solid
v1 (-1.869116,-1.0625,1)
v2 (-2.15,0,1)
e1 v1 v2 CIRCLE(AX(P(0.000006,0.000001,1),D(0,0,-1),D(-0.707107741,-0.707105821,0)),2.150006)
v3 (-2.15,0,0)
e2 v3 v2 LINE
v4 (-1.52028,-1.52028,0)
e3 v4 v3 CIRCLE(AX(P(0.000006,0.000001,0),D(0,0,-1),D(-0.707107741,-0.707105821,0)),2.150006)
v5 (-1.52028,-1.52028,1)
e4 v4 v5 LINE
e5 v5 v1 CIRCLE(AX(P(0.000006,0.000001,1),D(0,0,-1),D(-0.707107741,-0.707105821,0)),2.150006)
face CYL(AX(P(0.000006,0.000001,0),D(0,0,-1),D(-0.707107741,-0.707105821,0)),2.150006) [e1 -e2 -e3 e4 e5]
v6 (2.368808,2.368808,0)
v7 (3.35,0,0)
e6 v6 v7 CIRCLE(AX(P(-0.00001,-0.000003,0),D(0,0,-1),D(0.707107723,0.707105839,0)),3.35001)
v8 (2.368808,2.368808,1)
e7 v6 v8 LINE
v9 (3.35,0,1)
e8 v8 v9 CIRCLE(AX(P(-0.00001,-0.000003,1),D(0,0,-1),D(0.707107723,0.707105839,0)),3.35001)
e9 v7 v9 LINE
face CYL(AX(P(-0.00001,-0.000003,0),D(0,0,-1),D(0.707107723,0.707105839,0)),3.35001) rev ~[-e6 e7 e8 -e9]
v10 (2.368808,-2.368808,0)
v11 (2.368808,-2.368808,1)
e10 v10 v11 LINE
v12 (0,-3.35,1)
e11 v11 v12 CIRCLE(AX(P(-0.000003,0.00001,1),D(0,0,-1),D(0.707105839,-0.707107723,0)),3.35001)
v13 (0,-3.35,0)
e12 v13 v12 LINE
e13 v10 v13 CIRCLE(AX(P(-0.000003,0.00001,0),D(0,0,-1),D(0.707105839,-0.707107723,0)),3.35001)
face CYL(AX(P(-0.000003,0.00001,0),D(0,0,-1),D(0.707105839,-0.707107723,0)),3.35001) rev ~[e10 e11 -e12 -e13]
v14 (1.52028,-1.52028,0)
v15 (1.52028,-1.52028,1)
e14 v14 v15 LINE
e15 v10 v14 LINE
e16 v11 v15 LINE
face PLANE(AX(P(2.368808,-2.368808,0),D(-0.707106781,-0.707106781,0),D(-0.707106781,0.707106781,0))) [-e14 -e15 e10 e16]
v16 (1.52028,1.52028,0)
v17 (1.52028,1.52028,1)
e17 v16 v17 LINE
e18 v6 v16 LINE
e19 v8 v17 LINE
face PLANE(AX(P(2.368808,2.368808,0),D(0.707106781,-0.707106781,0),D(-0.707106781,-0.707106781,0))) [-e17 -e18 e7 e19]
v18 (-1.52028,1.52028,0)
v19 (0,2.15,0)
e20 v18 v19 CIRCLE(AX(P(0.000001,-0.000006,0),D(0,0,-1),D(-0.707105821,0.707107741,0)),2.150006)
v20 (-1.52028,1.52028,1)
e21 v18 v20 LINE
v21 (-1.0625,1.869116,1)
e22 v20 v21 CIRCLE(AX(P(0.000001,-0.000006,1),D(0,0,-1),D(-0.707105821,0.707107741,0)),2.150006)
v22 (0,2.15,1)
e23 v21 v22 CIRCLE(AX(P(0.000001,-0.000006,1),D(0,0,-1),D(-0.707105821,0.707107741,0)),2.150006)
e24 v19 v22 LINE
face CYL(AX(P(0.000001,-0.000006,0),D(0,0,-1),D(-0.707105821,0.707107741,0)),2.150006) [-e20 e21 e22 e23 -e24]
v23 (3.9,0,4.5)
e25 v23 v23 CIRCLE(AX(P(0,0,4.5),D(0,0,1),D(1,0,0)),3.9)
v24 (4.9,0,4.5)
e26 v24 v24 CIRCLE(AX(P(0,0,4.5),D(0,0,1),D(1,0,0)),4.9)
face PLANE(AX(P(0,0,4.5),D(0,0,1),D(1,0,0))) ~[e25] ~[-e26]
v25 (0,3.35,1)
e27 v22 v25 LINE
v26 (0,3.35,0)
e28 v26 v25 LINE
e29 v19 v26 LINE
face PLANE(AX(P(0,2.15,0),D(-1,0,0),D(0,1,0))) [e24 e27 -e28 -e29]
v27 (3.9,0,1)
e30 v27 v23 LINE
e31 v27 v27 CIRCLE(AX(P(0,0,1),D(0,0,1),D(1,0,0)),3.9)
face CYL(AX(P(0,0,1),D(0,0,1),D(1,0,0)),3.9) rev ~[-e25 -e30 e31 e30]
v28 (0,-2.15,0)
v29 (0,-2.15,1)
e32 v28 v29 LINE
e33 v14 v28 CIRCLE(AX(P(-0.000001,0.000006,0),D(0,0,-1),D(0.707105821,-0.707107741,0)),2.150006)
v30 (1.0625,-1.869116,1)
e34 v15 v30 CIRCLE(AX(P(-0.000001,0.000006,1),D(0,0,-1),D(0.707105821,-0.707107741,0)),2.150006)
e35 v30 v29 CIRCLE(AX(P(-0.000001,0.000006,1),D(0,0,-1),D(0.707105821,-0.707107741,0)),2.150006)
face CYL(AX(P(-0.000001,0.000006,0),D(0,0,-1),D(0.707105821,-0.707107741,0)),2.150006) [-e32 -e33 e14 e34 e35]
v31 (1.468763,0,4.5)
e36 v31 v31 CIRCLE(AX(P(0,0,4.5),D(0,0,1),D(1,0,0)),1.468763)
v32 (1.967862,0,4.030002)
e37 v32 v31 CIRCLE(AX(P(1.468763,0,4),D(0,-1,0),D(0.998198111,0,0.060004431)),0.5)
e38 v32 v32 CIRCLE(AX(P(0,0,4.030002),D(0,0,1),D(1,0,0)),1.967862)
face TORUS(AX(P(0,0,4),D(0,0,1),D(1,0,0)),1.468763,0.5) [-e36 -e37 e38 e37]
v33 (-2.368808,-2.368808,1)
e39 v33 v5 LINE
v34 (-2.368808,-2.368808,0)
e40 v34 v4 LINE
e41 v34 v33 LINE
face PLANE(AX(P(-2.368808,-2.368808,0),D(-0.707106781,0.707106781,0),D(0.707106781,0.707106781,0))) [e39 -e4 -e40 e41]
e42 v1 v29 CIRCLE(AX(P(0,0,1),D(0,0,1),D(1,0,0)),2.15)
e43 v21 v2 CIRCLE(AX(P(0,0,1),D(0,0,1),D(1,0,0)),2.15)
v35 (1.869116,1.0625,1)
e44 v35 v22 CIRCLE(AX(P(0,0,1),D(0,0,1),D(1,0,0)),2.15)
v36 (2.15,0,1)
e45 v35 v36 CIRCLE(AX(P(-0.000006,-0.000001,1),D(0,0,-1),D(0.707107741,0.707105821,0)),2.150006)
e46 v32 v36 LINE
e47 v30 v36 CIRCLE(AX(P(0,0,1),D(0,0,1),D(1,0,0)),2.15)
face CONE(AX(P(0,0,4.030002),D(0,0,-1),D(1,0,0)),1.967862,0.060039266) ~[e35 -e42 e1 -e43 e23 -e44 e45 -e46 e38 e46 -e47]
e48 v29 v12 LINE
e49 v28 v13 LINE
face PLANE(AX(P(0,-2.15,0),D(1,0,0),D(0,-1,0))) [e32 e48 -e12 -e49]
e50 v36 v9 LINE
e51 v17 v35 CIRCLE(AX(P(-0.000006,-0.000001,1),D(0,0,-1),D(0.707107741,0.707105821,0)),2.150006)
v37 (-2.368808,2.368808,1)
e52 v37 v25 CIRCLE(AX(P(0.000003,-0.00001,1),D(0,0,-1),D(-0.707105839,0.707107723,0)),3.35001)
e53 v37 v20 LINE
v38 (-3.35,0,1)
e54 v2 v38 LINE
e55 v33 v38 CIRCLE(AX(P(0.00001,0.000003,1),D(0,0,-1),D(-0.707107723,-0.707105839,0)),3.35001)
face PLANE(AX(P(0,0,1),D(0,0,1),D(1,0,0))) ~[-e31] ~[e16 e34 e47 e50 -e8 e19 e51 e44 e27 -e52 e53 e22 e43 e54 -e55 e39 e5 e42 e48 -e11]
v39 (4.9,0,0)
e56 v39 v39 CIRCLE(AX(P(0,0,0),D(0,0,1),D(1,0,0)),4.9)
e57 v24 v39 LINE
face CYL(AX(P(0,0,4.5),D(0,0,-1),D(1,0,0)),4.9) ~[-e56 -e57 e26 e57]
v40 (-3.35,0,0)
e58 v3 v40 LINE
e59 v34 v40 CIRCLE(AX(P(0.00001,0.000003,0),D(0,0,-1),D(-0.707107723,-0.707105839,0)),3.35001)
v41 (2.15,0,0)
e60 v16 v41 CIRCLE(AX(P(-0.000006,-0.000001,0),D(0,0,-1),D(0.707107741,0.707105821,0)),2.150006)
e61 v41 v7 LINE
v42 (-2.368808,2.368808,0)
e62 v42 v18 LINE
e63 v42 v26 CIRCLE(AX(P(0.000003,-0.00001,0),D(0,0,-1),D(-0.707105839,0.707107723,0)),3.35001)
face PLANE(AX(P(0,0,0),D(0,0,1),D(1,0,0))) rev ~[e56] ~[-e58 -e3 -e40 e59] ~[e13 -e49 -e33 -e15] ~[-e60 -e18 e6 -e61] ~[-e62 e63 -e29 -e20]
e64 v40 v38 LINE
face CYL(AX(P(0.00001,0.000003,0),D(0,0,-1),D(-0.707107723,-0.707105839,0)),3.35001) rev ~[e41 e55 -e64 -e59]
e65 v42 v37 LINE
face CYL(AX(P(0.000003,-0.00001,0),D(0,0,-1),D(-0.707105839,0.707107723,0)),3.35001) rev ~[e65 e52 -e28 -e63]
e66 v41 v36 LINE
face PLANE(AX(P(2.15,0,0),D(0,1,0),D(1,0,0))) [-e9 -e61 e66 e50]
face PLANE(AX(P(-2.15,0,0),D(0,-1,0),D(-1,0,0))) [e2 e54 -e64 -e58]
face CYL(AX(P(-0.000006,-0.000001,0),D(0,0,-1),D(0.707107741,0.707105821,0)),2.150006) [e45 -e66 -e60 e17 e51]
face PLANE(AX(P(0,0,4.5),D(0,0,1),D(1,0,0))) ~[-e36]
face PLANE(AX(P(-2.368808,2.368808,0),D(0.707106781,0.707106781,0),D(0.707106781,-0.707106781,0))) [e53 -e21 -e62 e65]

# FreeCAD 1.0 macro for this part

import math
import FreeCAD as App
import Part
import Sketcher
from FreeCAD import Vector
Q = App.Units.Quantity

doc = App.newDocument("Part")
body = doc.addObject("PartDesign::Body", "Body")

sketch1 = body.newObject("Sketcher::SketchObject", "Sketch")
sketch1.AttachmentSupport = (doc.getObject("XZ_Plane"), [""])
sketch1.MapMode = "FlatFace"
sketch1.addGeometry([
    Part.LineSegment(Vector(1.5, 4.5, 0), Vector(0, 4.5, 0)),
    Part.LineSegment(Vector(0, 4.5, 0), Vector(0, 0, 0)),
    Part.LineSegment(Vector(0, 0, 0), Vector(4.9, 0, 0)),
    Part.LineSegment(Vector(4.9, 0, 0), Vector(4.9, 4.5, 0)),
    Part.LineSegment(Vector(4.9, 4.5, 0), Vector(3.9, 4.5, 0)),
    Part.LineSegment(Vector(3.9, 4.5, 0), Vector(3.9, 1, 0)),
    Part.LineSegment(Vector(3.9, 1, 0), Vector(2.1, 1, 0)),
    Part.LineSegment(Vector(2.1, 1, 0), Vector(2, 4, 0)),
    Part.ArcOfCircle(Part.Circle(Vector(1.5, 4, 0), Vector(0, 0, 1), 0.5), math.radians(3), math.radians(90)),
], False)
sketch1.addConstraint([
    Sketcher.Constraint("Coincident", 0, 2, 1, 1),
    Sketcher.Constraint("Coincident", 1, 2, 2, 1),
    Sketcher.Constraint("Coincident", 2, 2, 3, 1),
    Sketcher.Constraint("Coincident", 3, 2, 4, 1),
    Sketcher.Constraint("Coincident", 4, 2, 5, 1),
    Sketcher.Constraint("Coincident", 5, 2, 6, 1),
    Sketcher.Constraint("Coincident", 6, 2, 7, 1),
    Sketcher.Constraint("Tangent", 7, 2, 8, 1),
    Sketcher.Constraint("Tangent", 8, 2, 0, 1),
    Sketcher.Constraint("Horizontal", 0),
    Sketcher.Constraint("Vertical", 1),
    Sketcher.Constraint("Horizontal", 2),
    Sketcher.Constraint("Vertical", 3),
    Sketcher.Constraint("Horizontal", 4),
    Sketcher.Constraint("Vertical", 5),
    Sketcher.Constraint("Horizontal", 6),
    Sketcher.Constraint("Coincident", 1, 2, -1, 1),
    Sketcher.Constraint("Horizontal", 0, 2, 3, 2),
    Sketcher.Constraint("Radius", 8, 0.5),
    Sketcher.Constraint("DistanceX", 4, 2, 4, 1, 1.0),
    Sketcher.Constraint("DistanceX", 2, 1, 2, 2, 4.9),
    Sketcher.Constraint("DistanceY", 1, 2, 1, 1, 4.5),
    Sketcher.Constraint("DistanceY", 5, 2, 5, 1, 3.5),
    Sketcher.Constraint("DistanceX", 6, 2, 6, 1, 1.75),
    Sketcher.Constraint("Angle", 7, Q("93.439997 deg")),
])
revolution = body.newObject("PartDesign::Revolution", "Revolution")
revolution.Profile = sketch1
revolution.ReferenceAxis = (sketch1, ["V_Axis"])
revolution.Angle = 360

sketch2 = body.newObject("Sketcher::SketchObject", "Sketch001")
sketch2.AttachmentSupport = (doc.getObject("XY_Plane"), [""])
sketch2.MapMode = "FlatFace"
sketch2.addGeometry([
    Part.LineSegment(Vector(-3.4, 0, 0), Vector(-2.1, 0, 0)),
    Part.ArcOfCircle(Part.Circle(Vector(0, 0, 0), Vector(0, 0, 1), 2.2), math.radians(-180), math.radians(-135)),
    Part.LineSegment(Vector(-1.5, -1.5, 0), Vector(-2.4, -2.4, 0)),
    Part.ArcOfCircle(Part.Circle(Vector(0, 0, 0), Vector(0, 0, 1), 3.4), math.radians(-180), math.radians(-135)),
], False)
sketch2.addConstraint([
    Sketcher.Constraint("Coincident", 0, 2, 1, 1),
    Sketcher.Constraint("Coincident", 1, 2, 2, 1),
    Sketcher.Constraint("Coincident", 2, 2, 3, 2),
    Sketcher.Constraint("Coincident", 3, 1, 0, 1),
    Sketcher.Constraint("Horizontal", 0),
    Sketcher.Constraint("Coincident", 1, 3, -1, 1),
    Sketcher.Constraint("Coincident", 3, 3, 1, 3),
    Sketcher.Constraint("PointOnObject", 0, 2, -1),
    Sketcher.Constraint("Angle", 2, Q("-135 deg")),
    Sketcher.Constraint("DistanceX", 0, 1, 0, 2, 1.2),
    Sketcher.Constraint("DistanceX", 0, 2, -1, 1, 2.15),
    Sketcher.Constraint("DistanceX", 1, 2, -1, 1, 1.52028),
])
pocket1 = body.newObject("PartDesign::Pocket", "Pocket")
pocket1.Profile = sketch2
pocket1.Type = "ThroughAll"
pocket1.Reversed = True

sketch3 = body.newObject("Sketcher::SketchObject", "Sketch002")
sketch3.AttachmentSupport = (doc.getObject("XY_Plane"), [""])
sketch3.MapMode = "FlatFace"
sketch3.addGeometry([
    Part.LineSegment(Vector(0, -3.4, 0), Vector(0, -2.1, 0)),
    Part.ArcOfCircle(Part.Circle(Vector(0, 0, 0), Vector(0, 0, 1), 2.2), math.radians(-90), math.radians(-45)),
    Part.LineSegment(Vector(1.5, -1.5, 0), Vector(2.4, -2.4, 0)),
    Part.ArcOfCircle(Part.Circle(Vector(0, 0, 0), Vector(0, 0, 1), 3.4), math.radians(-90), math.radians(-45)),
], False)
sketch3.addConstraint([
    Sketcher.Constraint("Coincident", 0, 2, 1, 1),
    Sketcher.Constraint("Coincident", 1, 2, 2, 1),
    Sketcher.Constraint("Coincident", 2, 2, 3, 2),
    Sketcher.Constraint("Coincident", 3, 1, 0, 1),
    Sketcher.Constraint("Vertical", 0),
    Sketcher.Constraint("Coincident", 1, 3, -1, 1),
    Sketcher.Constraint("Coincident", 3, 3, 1, 3),
    Sketcher.Constraint("PointOnObject", 0, 2, -2),
    Sketcher.Constraint("Angle", 2, Q("-45 deg")),
    Sketcher.Constraint("DistanceY", 0, 1, 0, 2, 1.2),
    Sketcher.Constraint("DistanceY", 0, 2, -1, 1, 2.15),
    Sketcher.Constraint("DistanceX", -1, 1, 1, 2, 1.52028),
])
pocket2 = body.newObject("PartDesign::Pocket", "Pocket001")
pocket2.Profile = sketch3
pocket2.Type = "ThroughAll"
pocket2.Reversed = True

sketch4 = body.newObject("Sketcher::SketchObject", "Sketch003")
sketch4.AttachmentSupport = (doc.getObject("XY_Plane"), [""])
sketch4.MapMode = "FlatFace"
sketch4.addGeometry([
    Part.LineSegment(Vector(3.4, 0, 0), Vector(2.1, 0, 0)),
    Part.ArcOfCircle(Part.Circle(Vector(0, 0, 0), Vector(0, 0, 1), 2.2), math.radians(0), math.radians(45)),
    Part.LineSegment(Vector(1.5, 1.5, 0), Vector(2.4, 2.4, 0)),
    Part.ArcOfCircle(Part.Circle(Vector(0, 0, 0), Vector(0, 0, 1), 3.4), math.radians(0), math.radians(45)),
], False)
sketch4.addConstraint([
    Sketcher.Constraint("Coincident", 0, 2, 1, 1),
    Sketcher.Constraint("Coincident", 1, 2, 2, 1),
    Sketcher.Constraint("Coincident", 2, 2, 3, 2),
    Sketcher.Constraint("Coincident", 3, 1, 0, 1),
    Sketcher.Constraint("Horizontal", 0),
    Sketcher.Constraint("Coincident", 1, 3, -1, 1),
    Sketcher.Constraint("Coincident", 3, 3, 1, 3),
    Sketcher.Constraint("PointOnObject", 0, 2, -1),
    Sketcher.Constraint("Angle", 2, Q("45 deg")),
    Sketcher.Constraint("DistanceX", 0, 2, 0, 1, 1.2),
    Sketcher.Constraint("DistanceX", -1, 1, 0, 2, 2.15),
    Sketcher.Constraint("DistanceX", -1, 1, 1, 2, 1.52028),
])
pocket3 = body.newObject("PartDesign::Pocket", "Pocket002")
pocket3.Profile = sketch4
pocket3.Type = "ThroughAll"
pocket3.Reversed = True

sketch5 = body.newObject("Sketcher::SketchObject", "Sketch004")
sketch5.AttachmentSupport = (doc.getObject("XY_Plane"), [""])
sketch5.MapMode = "FlatFace"
sketch5.addGeometry([
    Part.LineSegment(Vector(0, 3.4, 0), Vector(0, 2.1, 0)),
    Part.ArcOfCircle(Part.Circle(Vector(0, 0, 0), Vector(0, 0, 1), 2.2), math.radians(90), math.radians(135)),
    Part.LineSegment(Vector(-1.5, 1.5, 0), Vector(-2.4, 2.4, 0)),
    Part.ArcOfCircle(Part.Circle(Vector(0, 0, 0), Vector(0, 0, 1), 3.4), math.radians(90), math.radians(135)),
], False)
sketch5.addConstraint([
    Sketcher.Constraint("Coincident", 0, 2, 1, 1),
    Sketcher.Constraint("Coincident", 1, 2, 2, 1),
    Sketcher.Constraint("Coincident", 2, 2, 3, 2),
    Sketcher.Constraint("Coincident", 3, 1, 0, 1),
    Sketcher.Constraint("Vertical", 0),
    Sketcher.Constraint("Coincident", 1, 3, -1, 1),
    Sketcher.Constraint("Coincident", 3, 3, 1, 3),
    Sketcher.Constraint("PointOnObject", 0, 2, -2),
    Sketcher.Constraint("Angle", 2, Q("135 deg")),
    Sketcher.Constraint("DistanceY", 0, 2, 0, 1, 1.2),
    Sketcher.Constraint("DistanceY", -1, 1, 0, 2, 2.15),
    Sketcher.Constraint("DistanceX", 1, 2, -1, 1, 1.52028),
])
pocket4 = body.newObject("PartDesign::Pocket", "Pocket003")
pocket4.Profile = sketch5
pocket4.Type = "ThroughAll"
pocket4.Reversed = True

doc.recompute()
